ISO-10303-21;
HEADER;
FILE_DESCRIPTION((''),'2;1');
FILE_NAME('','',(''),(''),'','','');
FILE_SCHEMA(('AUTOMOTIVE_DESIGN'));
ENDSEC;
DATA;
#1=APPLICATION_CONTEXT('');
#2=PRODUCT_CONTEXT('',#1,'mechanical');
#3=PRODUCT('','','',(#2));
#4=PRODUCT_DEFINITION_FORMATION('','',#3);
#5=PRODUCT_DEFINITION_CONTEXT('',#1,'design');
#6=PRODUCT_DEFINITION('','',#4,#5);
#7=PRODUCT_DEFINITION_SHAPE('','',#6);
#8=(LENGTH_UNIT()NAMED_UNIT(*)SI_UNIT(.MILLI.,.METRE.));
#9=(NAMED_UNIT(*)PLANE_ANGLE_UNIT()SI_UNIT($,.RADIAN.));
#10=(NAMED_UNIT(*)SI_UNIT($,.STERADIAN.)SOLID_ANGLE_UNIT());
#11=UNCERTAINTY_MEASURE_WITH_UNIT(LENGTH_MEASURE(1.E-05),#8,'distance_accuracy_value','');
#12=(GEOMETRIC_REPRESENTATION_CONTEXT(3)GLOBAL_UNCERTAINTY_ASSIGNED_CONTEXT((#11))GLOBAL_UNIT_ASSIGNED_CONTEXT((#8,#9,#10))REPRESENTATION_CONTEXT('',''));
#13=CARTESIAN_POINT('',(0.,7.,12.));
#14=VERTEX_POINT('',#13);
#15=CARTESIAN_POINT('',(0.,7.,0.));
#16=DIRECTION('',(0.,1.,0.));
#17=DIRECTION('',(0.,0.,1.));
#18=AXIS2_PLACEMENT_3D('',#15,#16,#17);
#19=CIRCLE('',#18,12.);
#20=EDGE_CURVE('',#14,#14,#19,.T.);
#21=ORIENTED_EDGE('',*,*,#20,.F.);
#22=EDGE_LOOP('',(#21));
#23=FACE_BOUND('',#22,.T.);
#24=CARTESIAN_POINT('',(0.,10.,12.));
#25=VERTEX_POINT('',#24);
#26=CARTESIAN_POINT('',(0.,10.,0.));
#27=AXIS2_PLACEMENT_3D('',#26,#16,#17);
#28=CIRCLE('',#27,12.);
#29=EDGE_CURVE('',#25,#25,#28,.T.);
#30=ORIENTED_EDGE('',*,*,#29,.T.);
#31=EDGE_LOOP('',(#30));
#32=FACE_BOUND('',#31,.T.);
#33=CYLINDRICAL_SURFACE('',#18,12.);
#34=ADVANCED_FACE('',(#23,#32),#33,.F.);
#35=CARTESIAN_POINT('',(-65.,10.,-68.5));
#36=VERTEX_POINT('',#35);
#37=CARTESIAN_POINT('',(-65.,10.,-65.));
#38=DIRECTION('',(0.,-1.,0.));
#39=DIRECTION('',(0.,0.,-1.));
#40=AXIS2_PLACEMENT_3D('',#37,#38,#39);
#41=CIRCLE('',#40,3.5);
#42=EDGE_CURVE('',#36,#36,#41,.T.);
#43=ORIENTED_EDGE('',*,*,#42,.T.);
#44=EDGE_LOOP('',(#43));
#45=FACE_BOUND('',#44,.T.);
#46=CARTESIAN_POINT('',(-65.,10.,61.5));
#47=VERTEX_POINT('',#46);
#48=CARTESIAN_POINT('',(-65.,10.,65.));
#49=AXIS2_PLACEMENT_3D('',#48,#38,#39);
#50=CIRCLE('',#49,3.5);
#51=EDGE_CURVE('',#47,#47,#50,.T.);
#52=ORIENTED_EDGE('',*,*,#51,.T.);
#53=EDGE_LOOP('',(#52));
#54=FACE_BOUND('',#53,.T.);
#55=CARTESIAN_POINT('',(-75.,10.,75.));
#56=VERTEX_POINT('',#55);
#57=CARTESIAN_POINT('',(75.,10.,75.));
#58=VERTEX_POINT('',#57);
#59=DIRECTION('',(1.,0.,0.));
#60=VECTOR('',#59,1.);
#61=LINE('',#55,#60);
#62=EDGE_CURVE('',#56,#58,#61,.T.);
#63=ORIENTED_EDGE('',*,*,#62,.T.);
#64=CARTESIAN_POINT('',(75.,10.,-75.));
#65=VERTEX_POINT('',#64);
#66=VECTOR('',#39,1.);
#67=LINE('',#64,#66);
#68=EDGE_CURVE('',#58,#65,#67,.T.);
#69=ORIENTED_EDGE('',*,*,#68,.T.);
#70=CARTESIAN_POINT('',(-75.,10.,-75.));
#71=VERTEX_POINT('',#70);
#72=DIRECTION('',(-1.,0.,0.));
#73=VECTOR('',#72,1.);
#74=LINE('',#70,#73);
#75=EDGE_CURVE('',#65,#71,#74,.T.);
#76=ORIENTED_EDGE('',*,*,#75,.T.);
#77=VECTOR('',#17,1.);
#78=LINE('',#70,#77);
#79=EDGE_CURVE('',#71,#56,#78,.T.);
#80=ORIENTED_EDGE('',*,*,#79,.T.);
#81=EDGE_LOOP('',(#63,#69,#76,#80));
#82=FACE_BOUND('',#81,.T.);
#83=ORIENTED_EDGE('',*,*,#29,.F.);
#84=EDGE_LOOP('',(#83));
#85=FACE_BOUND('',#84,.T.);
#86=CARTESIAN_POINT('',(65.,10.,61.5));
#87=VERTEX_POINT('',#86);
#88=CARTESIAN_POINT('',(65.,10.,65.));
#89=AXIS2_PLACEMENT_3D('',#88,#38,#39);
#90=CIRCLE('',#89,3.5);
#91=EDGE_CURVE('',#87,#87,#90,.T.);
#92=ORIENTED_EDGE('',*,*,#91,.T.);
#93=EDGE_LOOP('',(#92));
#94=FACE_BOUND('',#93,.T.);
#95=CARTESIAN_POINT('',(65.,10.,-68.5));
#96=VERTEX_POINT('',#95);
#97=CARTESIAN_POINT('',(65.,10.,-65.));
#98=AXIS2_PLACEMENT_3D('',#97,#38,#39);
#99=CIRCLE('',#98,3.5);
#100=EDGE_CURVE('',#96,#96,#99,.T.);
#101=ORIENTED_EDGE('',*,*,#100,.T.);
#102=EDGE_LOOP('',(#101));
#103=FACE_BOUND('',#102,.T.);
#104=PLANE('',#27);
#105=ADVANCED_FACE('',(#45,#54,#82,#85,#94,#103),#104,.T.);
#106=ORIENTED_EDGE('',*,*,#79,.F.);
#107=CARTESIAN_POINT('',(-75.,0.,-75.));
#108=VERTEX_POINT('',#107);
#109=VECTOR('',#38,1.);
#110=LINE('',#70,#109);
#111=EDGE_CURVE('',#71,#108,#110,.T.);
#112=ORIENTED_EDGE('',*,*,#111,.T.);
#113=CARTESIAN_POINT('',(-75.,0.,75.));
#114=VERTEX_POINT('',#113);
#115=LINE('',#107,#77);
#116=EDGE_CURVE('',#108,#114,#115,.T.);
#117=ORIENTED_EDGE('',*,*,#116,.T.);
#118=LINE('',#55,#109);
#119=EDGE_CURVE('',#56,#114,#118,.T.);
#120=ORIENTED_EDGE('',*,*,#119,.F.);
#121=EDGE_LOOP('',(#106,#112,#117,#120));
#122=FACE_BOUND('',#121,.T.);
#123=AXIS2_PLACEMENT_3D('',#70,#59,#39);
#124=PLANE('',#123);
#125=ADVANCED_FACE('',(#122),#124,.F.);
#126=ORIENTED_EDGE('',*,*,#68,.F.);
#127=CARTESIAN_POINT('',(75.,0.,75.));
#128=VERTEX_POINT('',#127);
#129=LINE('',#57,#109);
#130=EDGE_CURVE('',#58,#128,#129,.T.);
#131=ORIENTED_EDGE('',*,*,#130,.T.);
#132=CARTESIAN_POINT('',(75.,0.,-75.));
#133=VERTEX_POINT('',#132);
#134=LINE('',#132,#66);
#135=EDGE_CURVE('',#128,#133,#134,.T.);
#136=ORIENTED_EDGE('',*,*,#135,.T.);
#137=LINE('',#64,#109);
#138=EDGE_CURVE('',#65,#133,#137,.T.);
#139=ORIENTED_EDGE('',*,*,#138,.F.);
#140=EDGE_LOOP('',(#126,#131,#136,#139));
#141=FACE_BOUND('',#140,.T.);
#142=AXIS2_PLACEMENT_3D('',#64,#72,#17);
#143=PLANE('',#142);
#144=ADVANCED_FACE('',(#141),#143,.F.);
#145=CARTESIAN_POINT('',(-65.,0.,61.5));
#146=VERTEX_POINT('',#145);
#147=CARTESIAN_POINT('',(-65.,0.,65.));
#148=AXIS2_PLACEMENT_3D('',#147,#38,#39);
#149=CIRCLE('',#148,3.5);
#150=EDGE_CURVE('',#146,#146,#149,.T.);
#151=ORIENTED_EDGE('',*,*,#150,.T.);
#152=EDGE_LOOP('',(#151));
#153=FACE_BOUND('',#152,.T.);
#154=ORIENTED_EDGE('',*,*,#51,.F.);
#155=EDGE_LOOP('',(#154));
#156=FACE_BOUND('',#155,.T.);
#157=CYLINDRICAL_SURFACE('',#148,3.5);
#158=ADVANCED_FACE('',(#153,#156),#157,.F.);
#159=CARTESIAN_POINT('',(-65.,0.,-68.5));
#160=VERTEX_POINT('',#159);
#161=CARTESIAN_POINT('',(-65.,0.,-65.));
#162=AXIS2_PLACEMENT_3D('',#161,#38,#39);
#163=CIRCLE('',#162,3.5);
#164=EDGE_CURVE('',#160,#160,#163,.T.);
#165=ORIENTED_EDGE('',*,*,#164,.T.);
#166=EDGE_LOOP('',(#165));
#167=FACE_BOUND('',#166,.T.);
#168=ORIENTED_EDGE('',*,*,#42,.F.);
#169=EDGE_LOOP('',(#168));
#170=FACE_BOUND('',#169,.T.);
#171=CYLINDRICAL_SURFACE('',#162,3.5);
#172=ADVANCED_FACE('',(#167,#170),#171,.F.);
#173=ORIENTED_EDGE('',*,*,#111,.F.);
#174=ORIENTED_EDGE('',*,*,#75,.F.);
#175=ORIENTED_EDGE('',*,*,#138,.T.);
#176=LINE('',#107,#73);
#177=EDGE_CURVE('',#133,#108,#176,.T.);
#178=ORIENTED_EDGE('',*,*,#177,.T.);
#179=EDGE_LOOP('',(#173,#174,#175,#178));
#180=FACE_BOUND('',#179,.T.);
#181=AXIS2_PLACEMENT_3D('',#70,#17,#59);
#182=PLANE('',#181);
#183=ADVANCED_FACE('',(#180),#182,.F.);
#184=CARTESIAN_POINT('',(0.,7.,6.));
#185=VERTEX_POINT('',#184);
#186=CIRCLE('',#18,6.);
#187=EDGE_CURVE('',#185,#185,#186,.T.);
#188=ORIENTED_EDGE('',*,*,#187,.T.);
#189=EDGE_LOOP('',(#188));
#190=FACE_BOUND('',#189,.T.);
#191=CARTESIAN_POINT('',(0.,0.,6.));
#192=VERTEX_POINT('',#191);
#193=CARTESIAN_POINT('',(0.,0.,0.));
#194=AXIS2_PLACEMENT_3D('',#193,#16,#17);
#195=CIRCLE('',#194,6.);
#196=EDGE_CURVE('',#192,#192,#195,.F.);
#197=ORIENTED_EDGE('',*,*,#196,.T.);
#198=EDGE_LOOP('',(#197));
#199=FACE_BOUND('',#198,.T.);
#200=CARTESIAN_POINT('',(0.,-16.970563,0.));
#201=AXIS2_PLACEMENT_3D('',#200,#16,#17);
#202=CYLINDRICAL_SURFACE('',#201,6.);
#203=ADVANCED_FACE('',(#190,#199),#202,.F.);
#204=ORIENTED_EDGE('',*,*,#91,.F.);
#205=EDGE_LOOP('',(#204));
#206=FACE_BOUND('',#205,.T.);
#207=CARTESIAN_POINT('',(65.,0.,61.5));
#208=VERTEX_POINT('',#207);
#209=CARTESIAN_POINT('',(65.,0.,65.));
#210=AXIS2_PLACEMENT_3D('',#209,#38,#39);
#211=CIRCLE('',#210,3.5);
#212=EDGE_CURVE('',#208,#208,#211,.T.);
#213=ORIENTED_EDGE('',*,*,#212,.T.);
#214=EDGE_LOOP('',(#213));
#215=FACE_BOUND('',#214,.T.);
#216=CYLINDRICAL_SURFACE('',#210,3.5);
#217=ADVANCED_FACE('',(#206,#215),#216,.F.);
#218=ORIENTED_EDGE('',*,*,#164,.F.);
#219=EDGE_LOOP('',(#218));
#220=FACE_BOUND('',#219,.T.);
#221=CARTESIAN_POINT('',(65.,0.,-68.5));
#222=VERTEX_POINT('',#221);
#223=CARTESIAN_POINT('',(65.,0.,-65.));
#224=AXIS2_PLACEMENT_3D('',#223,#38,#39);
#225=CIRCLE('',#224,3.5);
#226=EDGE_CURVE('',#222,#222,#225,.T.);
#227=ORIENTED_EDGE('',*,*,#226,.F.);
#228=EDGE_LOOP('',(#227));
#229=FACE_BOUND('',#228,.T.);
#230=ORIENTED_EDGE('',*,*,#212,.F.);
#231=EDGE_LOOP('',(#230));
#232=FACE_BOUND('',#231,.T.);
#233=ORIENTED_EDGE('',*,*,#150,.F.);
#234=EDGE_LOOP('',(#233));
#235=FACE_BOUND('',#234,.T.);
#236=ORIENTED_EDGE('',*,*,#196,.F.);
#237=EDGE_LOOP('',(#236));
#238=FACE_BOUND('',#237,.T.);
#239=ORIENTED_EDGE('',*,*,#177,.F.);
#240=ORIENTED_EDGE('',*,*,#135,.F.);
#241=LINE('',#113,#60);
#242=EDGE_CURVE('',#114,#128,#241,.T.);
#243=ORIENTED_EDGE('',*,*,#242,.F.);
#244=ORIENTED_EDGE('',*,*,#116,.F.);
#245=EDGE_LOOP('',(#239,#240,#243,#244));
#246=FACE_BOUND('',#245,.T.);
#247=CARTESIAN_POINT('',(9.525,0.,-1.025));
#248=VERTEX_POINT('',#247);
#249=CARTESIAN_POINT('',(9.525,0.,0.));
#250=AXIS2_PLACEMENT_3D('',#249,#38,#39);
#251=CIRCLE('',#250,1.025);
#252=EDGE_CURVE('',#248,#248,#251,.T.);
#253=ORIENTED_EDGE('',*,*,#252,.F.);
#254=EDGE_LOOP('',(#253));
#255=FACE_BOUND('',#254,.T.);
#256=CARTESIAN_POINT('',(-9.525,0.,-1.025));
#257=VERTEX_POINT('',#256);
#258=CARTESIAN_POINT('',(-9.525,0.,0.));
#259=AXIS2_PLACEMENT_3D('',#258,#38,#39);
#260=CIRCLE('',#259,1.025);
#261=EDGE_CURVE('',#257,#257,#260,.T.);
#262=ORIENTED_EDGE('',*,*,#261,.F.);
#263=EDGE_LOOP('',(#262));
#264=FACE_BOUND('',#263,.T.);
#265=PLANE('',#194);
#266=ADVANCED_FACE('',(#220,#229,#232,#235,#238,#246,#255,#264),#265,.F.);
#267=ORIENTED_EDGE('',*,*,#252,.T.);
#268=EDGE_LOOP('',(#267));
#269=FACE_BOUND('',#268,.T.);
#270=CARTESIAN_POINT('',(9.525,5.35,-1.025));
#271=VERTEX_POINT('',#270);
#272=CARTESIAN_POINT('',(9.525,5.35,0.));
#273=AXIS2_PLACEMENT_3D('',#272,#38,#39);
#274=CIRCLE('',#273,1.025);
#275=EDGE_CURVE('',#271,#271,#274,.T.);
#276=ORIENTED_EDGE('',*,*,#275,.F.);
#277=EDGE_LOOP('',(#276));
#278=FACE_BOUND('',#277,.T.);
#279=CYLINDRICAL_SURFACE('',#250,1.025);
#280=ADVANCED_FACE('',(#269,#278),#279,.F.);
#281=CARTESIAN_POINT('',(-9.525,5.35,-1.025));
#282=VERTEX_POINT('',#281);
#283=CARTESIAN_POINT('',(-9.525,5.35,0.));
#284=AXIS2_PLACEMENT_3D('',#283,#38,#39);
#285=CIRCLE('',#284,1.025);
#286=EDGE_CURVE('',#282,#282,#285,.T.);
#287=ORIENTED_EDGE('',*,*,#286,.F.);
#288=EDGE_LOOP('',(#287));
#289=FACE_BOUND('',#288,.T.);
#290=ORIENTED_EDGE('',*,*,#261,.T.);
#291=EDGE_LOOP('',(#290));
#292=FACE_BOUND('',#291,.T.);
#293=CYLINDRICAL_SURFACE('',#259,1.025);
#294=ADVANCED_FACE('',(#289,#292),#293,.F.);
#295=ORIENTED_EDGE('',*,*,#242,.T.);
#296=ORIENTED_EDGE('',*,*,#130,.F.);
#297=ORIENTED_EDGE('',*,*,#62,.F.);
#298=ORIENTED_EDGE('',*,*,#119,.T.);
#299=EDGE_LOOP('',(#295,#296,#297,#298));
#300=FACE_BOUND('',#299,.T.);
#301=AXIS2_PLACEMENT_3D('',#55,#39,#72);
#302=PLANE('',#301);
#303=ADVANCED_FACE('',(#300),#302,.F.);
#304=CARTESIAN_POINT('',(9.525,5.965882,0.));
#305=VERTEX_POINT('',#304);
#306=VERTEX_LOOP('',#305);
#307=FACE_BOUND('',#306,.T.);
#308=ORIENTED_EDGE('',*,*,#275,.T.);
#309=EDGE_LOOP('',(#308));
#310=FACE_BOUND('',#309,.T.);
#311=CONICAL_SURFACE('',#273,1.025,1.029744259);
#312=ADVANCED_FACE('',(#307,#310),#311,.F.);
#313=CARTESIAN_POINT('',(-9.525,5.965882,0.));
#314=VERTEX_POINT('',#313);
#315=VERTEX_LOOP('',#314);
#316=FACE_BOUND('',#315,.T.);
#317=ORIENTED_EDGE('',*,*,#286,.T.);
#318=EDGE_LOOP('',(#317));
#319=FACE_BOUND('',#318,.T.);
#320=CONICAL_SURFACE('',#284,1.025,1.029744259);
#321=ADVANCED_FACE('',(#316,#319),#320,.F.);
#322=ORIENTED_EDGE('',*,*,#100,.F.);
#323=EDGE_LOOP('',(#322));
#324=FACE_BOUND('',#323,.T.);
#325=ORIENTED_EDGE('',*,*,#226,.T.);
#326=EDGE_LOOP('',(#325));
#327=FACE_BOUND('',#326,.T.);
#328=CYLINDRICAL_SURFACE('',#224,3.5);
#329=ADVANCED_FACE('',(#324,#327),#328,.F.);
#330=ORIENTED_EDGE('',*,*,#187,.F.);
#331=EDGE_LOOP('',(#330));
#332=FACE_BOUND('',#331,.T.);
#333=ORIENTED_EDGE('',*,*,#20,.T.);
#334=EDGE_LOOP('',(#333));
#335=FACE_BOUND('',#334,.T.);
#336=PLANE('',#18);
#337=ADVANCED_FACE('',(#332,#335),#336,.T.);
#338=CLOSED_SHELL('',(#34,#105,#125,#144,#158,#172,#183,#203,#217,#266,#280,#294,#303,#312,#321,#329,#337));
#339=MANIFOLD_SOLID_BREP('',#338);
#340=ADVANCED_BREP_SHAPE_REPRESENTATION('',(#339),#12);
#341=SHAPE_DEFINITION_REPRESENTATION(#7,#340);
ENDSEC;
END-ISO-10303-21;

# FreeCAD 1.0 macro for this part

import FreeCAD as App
import Part
import Sketcher

V = App.Vector
Q = App.Units.Quantity

doc = App.newDocument("Part")
params = doc.addObject("Spreadsheet::Sheet", "Params")
for row, (alias, value) in enumerate([
    ("sketch1_width", "150 mm"),
    ("pad1_length", "10 mm"),
    ("sketch2_diameter", "24 mm"),
    ("pocket1_length", "3 mm"),
    ("sketch3_diameter", "12 mm"),
    ("pocket2_length", "7 mm"),
    ("sketch4_diameter", "7 mm"),
    ("hole_diameter", "7 mm"),
    ("sketch5_diameter", "2.05 mm"),
    ("hole2_diameter", "2.05 mm"),
    ("hole2_depth", "5.35 mm"),
], start=1):
    params.set(f"A{row}", alias)
    params.set(f"B{row}", "=" + value)
    params.setAlias(f"B{row}", alias)

body = doc.addObject("PartDesign::Body", "Body")

sketch1 = body.newObject("Sketcher::SketchObject", "Sketch")
sketch1.AttachmentSupport = (doc.getObject("XZ_Plane"), [""])
sketch1.MapMode = "FlatFace"
sketch1.addGeometry([
    Part.LineSegment(V(-75, -75, 0), V(-75, 75, 0)),
    Part.LineSegment(V(-75, 75, 0), V(75, 75, 0)),
    Part.LineSegment(V(75, 75, 0), V(75, -75, 0)),
    Part.LineSegment(V(75, -75, 0), V(-75, -75, 0)),
], False)
sketch1.addConstraint([
    Sketcher.Constraint("Coincident", 0, 2, 1, 1),
    Sketcher.Constraint("Coincident", 1, 2, 2, 1),
    Sketcher.Constraint("Coincident", 2, 2, 3, 1),
    Sketcher.Constraint("Coincident", 3, 2, 0, 1),
    Sketcher.Constraint("Vertical", 0),
    Sketcher.Constraint("Horizontal", 1),
    Sketcher.Constraint("Vertical", 2),
    Sketcher.Constraint("Horizontal", 3),
    Sketcher.Constraint("Symmetric", 0, 2, 2, 2, -1, 1),
    Sketcher.Constraint("Equal", 3, 0),
    Sketcher.Constraint("DistanceX", 1, 1, 1, 2, Q("150 mm")),
])
sketch1.setExpression("Constraints[10]", "Params.sketch1_width")
pad1 = body.newObject("PartDesign::Pad", "Pad")
pad1.Profile = sketch1
pad1.setExpression("Length", "Params.pad1_length")
pad1.Reversed = True

sketch2 = body.newObject("Sketcher::SketchObject", "Sketch001")
sketch2.AttachmentSupport = (doc.getObject("XZ_Plane"), [""])
sketch2.MapMode = "FlatFace"
sketch2.AttachmentOffset = App.Placement(V(0, 0, -10), App.Rotation())
sketch2.addGeometry(Part.Circle(V(0, 0, 0), V(0, 0, 1), 12), False)
sketch2.addConstraint([
    Sketcher.Constraint("Coincident", 0, 3, -1, 1),
    Sketcher.Constraint("Diameter", 0, Q("24 mm")),
])
sketch2.setExpression("Constraints[1]", "Params.sketch2_diameter")
pocket1 = body.newObject("PartDesign::Pocket", "Pocket")
pocket1.Profile = sketch2
pocket1.setExpression("Length", "Params.pocket1_length")
pocket1.Reversed = True

sketch3 = body.newObject("Sketcher::SketchObject", "Sketch002")
sketch3.AttachmentSupport = (doc.getObject("XZ_Plane"), [""])
sketch3.MapMode = "FlatFace"
sketch3.AttachmentOffset = App.Placement(V(0, 0, -7), App.Rotation())
sketch3.addGeometry(Part.Circle(V(0, 0, 0), V(0, 0, 1), 6), False)
sketch3.addConstraint([
    Sketcher.Constraint("Coincident", 0, 3, -1, 1),
    Sketcher.Constraint("Diameter", 0, Q("12 mm")),
])
sketch3.setExpression("Constraints[1]", "Params.sketch3_diameter")
pocket2 = body.newObject("PartDesign::Pocket", "Pocket001")
pocket2.Profile = sketch3
pocket2.setExpression("Length", "Params.pocket2_length")
pocket2.Reversed = True

sketch4 = body.newObject("Sketcher::SketchObject", "Sketch003")
sketch4.AttachmentSupport = (doc.getObject("XZ_Plane"), [""])
sketch4.MapMode = "FlatFace"
sketch4.addGeometry([
    Part.Circle(V(65, 65, 0), V(0, 0, 1), 3.5),
    Part.Circle(V(65, -65, 0), V(0, 0, 1), 3.5),
    Part.Circle(V(-65, -65, 0), V(0, 0, 1), 3.5),
    Part.Circle(V(-65, 65, 0), V(0, 0, 1), 3.5),
], False)
sketch4.addConstraint([
    Sketcher.Constraint("Equal", 0, 1),
    Sketcher.Constraint("Equal", 1, 2),
    Sketcher.Constraint("Equal", 2, 3),
    Sketcher.Constraint("Symmetric", 0, 3, 2, 3, -1, 1),
    Sketcher.Constraint("Symmetric", 1, 3, 3, 3, -1, 1),
    Sketcher.Constraint("Symmetric", 1, 3, 2, 3, -2),
    Sketcher.Constraint("Diameter", 0, Q("7 mm")),
    Sketcher.Constraint("DistanceX", -1, 1, 0, 3, Q("65 mm")),
    Sketcher.Constraint("DistanceY", -1, 1, 0, 3, Q("65 mm")),
])
sketch4.setExpression("Constraints[6]", "Params.sketch4_diameter")
doc.recompute()
hole = body.newObject("PartDesign::Hole", "Hole")
hole.Profile = sketch4
hole.ThreadType = "None"
hole.setExpression("Diameter", "Params.hole_diameter")
hole.DepthType = "ThroughAll"

sketch5 = body.newObject("Sketcher::SketchObject", "Sketch004")
sketch5.AttachmentSupport = (doc.getObject("XZ_Plane"), [""])
sketch5.MapMode = "FlatFace"
sketch5.addGeometry([
    Part.Circle(V(-9.5, 0, 0), V(0, 0, 1), 1),
    Part.Circle(V(9.5, 0, 0), V(0, 0, 1), 1),
], False)
sketch5.addConstraint([
    Sketcher.Constraint("Equal", 0, 1),
    Sketcher.Constraint("Symmetric", 0, 3, 1, 3, -1, 1),
    Sketcher.Constraint("PointOnObject", 0, 3, -1),
    Sketcher.Constraint("Diameter", 0, Q("2.05 mm")),
    Sketcher.Constraint("DistanceX", 0, 3, 1, 3, Q("19.05 mm")),
])
sketch5.setExpression("Constraints[3]", "Params.sketch5_diameter")
doc.recompute()
hole2 = body.newObject("PartDesign::Hole", "Hole001")
hole2.Profile = sketch5
hole2.ThreadType = "None"
hole2.setExpression("Diameter", "Params.hole2_diameter")
hole2.DepthType = "Dimension"
hole2.setExpression("Depth", "Params.hole2_depth")
hole2.DrillPoint = "Angled"
hole2.DrillPointAngle = 118

doc.recompute()
